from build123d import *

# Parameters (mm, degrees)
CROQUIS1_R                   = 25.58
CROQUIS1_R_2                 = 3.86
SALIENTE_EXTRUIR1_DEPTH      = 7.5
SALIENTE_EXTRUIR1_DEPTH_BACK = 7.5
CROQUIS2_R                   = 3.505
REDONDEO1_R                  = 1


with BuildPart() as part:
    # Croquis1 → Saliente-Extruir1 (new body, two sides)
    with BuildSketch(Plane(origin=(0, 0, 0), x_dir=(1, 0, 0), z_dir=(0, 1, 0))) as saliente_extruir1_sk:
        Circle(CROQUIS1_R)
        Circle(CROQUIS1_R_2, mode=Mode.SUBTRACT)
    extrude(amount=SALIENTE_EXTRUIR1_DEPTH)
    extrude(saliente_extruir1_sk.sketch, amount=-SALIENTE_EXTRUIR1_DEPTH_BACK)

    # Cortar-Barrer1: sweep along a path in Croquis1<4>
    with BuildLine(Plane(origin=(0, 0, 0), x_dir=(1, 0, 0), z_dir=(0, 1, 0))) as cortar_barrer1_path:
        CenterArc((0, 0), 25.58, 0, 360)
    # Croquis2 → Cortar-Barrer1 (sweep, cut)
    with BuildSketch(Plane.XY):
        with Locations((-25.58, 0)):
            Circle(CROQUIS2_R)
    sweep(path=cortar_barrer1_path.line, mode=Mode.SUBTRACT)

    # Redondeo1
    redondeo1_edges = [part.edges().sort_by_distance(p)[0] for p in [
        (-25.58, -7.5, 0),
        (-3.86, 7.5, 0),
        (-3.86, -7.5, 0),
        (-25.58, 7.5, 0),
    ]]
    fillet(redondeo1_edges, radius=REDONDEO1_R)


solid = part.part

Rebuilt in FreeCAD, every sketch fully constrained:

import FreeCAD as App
import Part
import Sketcher

V = App.Vector


def edges_at(feature, points):
    """Names of the edges that pass closest to the given points."""
    edges = feature.Shape.Edges
    near = lambda p: min(range(len(edges)), key=lambda i: edges[i].distToShape(Part.Vertex(*p))[0])
    return sorted({f"Edge{near(p) + 1}" for p in points})

doc = App.newDocument("Part")
params = doc.addObject("Spreadsheet::Sheet", "Params")
for row, (alias, value) in enumerate([
    ("sketch1_diameter", "51.16 mm"),
    ("sketch1_diameter2", "7.72 mm"),
    ("pad1_length", "7.5 mm"),
    ("pad1_length2", "7.5 mm"),
    ("sketch2_diameter", "7.01 mm"),
    ("sketch3_diameter", "51.16 mm"),
    ("fillet_radius", "1 mm"),
], start=1):
    params.set(f"A{row}", alias)
    params.set(f"B{row}", "=" + value)
    params.setAlias(f"B{row}", alias)

body = doc.addObject("PartDesign::Body", "Body")

# Sketch on XZ plane
sketch1 = body.newObject("Sketcher::SketchObject", "Sketch")
sketch1.AttachmentSupport = (doc.getObject("XZ_Plane"), [""])
sketch1.MapMode = "FlatFace"
sketch1.addGeometry([
    Part.Circle(V(0, 0, 0), V(0, 0, 1), 25.58),
    Part.Circle(V(0, 0, 0), V(0, 0, 1), 3.86),
], False)
sketch1.addConstraint([
    Sketcher.Constraint("Coincident", 0, 3, -1, 1),
    Sketcher.Constraint("Coincident", 1, 3, -1, 1),
    Sketcher.Constraint("Diameter", 0, 51.16),
    Sketcher.Constraint("Diameter", 1, 7.72),
])
sketch1.setExpression("Constraints[2]", "Params.sketch1_diameter")
sketch1.setExpression("Constraints[3]", "Params.sketch1_diameter2")
pad1 = body.newObject("PartDesign::Pad", "Pad")
pad1.Profile = sketch1
pad1.Type = "TwoLengths"
pad1.setExpression("Length", "Params.pad1_length")
pad1.setExpression("Length2", "Params.pad1_length2")
pad1.Reversed = True

# Sketch on XY plane
sketch2 = body.newObject("Sketcher::SketchObject", "Sketch001")
sketch2.AttachmentSupport = (doc.getObject("XY_Plane"), [""])
sketch2.MapMode = "FlatFace"
sketch2.addGeometry(Part.Circle(V(-25.58, 0, 0), V(0, 0, 1), 3.505), False)
sketch2.addConstraint([
    Sketcher.Constraint("PointOnObject", 0, 3, -1),
    Sketcher.Constraint("Diameter", 0, 7.01),
    Sketcher.Constraint("DistanceX", 0, 3, -1, 1, 25.58),
])
sketch2.setExpression("Constraints[1]", "Params.sketch2_diameter")

# Sketch on XZ plane
sketch3 = body.newObject("Sketcher::SketchObject", "Sketch002")
sketch3.AttachmentSupport = (doc.getObject("XZ_Plane"), [""])
sketch3.MapMode = "FlatFace"
sketch3.addGeometry(Part.Circle(V(0, 0, 0), V(0, 0, 1), 25.58), False)
sketch3.addConstraint([
    Sketcher.Constraint("Coincident", 0, 3, -1, 1),
    Sketcher.Constraint("Diameter", 0, 51.16),
])
sketch3.setExpression("Constraints[1]", "Params.sketch3_diameter")
doc.recompute()

subtractivepipe = body.newObject("PartDesign::SubtractivePipe", "SubtractivePipe")
subtractivepipe.Profile = sketch2
subtractivepipe.Spine = (sketch3, ["Edge1"])
doc.recompute()

fillet = body.newObject("PartDesign::Fillet", "Fillet")
fillet.Base = (subtractivepipe, edges_at(subtractivepipe, [
    (-25.58, -7.5, 0),
    (-3.86, 7.5, 0),
    (-3.86, -7.5, 0),
    (-25.58, 7.5, 0),
]))
fillet.setExpression("Radius", "Params.fillet_radius")

doc.recompute()
